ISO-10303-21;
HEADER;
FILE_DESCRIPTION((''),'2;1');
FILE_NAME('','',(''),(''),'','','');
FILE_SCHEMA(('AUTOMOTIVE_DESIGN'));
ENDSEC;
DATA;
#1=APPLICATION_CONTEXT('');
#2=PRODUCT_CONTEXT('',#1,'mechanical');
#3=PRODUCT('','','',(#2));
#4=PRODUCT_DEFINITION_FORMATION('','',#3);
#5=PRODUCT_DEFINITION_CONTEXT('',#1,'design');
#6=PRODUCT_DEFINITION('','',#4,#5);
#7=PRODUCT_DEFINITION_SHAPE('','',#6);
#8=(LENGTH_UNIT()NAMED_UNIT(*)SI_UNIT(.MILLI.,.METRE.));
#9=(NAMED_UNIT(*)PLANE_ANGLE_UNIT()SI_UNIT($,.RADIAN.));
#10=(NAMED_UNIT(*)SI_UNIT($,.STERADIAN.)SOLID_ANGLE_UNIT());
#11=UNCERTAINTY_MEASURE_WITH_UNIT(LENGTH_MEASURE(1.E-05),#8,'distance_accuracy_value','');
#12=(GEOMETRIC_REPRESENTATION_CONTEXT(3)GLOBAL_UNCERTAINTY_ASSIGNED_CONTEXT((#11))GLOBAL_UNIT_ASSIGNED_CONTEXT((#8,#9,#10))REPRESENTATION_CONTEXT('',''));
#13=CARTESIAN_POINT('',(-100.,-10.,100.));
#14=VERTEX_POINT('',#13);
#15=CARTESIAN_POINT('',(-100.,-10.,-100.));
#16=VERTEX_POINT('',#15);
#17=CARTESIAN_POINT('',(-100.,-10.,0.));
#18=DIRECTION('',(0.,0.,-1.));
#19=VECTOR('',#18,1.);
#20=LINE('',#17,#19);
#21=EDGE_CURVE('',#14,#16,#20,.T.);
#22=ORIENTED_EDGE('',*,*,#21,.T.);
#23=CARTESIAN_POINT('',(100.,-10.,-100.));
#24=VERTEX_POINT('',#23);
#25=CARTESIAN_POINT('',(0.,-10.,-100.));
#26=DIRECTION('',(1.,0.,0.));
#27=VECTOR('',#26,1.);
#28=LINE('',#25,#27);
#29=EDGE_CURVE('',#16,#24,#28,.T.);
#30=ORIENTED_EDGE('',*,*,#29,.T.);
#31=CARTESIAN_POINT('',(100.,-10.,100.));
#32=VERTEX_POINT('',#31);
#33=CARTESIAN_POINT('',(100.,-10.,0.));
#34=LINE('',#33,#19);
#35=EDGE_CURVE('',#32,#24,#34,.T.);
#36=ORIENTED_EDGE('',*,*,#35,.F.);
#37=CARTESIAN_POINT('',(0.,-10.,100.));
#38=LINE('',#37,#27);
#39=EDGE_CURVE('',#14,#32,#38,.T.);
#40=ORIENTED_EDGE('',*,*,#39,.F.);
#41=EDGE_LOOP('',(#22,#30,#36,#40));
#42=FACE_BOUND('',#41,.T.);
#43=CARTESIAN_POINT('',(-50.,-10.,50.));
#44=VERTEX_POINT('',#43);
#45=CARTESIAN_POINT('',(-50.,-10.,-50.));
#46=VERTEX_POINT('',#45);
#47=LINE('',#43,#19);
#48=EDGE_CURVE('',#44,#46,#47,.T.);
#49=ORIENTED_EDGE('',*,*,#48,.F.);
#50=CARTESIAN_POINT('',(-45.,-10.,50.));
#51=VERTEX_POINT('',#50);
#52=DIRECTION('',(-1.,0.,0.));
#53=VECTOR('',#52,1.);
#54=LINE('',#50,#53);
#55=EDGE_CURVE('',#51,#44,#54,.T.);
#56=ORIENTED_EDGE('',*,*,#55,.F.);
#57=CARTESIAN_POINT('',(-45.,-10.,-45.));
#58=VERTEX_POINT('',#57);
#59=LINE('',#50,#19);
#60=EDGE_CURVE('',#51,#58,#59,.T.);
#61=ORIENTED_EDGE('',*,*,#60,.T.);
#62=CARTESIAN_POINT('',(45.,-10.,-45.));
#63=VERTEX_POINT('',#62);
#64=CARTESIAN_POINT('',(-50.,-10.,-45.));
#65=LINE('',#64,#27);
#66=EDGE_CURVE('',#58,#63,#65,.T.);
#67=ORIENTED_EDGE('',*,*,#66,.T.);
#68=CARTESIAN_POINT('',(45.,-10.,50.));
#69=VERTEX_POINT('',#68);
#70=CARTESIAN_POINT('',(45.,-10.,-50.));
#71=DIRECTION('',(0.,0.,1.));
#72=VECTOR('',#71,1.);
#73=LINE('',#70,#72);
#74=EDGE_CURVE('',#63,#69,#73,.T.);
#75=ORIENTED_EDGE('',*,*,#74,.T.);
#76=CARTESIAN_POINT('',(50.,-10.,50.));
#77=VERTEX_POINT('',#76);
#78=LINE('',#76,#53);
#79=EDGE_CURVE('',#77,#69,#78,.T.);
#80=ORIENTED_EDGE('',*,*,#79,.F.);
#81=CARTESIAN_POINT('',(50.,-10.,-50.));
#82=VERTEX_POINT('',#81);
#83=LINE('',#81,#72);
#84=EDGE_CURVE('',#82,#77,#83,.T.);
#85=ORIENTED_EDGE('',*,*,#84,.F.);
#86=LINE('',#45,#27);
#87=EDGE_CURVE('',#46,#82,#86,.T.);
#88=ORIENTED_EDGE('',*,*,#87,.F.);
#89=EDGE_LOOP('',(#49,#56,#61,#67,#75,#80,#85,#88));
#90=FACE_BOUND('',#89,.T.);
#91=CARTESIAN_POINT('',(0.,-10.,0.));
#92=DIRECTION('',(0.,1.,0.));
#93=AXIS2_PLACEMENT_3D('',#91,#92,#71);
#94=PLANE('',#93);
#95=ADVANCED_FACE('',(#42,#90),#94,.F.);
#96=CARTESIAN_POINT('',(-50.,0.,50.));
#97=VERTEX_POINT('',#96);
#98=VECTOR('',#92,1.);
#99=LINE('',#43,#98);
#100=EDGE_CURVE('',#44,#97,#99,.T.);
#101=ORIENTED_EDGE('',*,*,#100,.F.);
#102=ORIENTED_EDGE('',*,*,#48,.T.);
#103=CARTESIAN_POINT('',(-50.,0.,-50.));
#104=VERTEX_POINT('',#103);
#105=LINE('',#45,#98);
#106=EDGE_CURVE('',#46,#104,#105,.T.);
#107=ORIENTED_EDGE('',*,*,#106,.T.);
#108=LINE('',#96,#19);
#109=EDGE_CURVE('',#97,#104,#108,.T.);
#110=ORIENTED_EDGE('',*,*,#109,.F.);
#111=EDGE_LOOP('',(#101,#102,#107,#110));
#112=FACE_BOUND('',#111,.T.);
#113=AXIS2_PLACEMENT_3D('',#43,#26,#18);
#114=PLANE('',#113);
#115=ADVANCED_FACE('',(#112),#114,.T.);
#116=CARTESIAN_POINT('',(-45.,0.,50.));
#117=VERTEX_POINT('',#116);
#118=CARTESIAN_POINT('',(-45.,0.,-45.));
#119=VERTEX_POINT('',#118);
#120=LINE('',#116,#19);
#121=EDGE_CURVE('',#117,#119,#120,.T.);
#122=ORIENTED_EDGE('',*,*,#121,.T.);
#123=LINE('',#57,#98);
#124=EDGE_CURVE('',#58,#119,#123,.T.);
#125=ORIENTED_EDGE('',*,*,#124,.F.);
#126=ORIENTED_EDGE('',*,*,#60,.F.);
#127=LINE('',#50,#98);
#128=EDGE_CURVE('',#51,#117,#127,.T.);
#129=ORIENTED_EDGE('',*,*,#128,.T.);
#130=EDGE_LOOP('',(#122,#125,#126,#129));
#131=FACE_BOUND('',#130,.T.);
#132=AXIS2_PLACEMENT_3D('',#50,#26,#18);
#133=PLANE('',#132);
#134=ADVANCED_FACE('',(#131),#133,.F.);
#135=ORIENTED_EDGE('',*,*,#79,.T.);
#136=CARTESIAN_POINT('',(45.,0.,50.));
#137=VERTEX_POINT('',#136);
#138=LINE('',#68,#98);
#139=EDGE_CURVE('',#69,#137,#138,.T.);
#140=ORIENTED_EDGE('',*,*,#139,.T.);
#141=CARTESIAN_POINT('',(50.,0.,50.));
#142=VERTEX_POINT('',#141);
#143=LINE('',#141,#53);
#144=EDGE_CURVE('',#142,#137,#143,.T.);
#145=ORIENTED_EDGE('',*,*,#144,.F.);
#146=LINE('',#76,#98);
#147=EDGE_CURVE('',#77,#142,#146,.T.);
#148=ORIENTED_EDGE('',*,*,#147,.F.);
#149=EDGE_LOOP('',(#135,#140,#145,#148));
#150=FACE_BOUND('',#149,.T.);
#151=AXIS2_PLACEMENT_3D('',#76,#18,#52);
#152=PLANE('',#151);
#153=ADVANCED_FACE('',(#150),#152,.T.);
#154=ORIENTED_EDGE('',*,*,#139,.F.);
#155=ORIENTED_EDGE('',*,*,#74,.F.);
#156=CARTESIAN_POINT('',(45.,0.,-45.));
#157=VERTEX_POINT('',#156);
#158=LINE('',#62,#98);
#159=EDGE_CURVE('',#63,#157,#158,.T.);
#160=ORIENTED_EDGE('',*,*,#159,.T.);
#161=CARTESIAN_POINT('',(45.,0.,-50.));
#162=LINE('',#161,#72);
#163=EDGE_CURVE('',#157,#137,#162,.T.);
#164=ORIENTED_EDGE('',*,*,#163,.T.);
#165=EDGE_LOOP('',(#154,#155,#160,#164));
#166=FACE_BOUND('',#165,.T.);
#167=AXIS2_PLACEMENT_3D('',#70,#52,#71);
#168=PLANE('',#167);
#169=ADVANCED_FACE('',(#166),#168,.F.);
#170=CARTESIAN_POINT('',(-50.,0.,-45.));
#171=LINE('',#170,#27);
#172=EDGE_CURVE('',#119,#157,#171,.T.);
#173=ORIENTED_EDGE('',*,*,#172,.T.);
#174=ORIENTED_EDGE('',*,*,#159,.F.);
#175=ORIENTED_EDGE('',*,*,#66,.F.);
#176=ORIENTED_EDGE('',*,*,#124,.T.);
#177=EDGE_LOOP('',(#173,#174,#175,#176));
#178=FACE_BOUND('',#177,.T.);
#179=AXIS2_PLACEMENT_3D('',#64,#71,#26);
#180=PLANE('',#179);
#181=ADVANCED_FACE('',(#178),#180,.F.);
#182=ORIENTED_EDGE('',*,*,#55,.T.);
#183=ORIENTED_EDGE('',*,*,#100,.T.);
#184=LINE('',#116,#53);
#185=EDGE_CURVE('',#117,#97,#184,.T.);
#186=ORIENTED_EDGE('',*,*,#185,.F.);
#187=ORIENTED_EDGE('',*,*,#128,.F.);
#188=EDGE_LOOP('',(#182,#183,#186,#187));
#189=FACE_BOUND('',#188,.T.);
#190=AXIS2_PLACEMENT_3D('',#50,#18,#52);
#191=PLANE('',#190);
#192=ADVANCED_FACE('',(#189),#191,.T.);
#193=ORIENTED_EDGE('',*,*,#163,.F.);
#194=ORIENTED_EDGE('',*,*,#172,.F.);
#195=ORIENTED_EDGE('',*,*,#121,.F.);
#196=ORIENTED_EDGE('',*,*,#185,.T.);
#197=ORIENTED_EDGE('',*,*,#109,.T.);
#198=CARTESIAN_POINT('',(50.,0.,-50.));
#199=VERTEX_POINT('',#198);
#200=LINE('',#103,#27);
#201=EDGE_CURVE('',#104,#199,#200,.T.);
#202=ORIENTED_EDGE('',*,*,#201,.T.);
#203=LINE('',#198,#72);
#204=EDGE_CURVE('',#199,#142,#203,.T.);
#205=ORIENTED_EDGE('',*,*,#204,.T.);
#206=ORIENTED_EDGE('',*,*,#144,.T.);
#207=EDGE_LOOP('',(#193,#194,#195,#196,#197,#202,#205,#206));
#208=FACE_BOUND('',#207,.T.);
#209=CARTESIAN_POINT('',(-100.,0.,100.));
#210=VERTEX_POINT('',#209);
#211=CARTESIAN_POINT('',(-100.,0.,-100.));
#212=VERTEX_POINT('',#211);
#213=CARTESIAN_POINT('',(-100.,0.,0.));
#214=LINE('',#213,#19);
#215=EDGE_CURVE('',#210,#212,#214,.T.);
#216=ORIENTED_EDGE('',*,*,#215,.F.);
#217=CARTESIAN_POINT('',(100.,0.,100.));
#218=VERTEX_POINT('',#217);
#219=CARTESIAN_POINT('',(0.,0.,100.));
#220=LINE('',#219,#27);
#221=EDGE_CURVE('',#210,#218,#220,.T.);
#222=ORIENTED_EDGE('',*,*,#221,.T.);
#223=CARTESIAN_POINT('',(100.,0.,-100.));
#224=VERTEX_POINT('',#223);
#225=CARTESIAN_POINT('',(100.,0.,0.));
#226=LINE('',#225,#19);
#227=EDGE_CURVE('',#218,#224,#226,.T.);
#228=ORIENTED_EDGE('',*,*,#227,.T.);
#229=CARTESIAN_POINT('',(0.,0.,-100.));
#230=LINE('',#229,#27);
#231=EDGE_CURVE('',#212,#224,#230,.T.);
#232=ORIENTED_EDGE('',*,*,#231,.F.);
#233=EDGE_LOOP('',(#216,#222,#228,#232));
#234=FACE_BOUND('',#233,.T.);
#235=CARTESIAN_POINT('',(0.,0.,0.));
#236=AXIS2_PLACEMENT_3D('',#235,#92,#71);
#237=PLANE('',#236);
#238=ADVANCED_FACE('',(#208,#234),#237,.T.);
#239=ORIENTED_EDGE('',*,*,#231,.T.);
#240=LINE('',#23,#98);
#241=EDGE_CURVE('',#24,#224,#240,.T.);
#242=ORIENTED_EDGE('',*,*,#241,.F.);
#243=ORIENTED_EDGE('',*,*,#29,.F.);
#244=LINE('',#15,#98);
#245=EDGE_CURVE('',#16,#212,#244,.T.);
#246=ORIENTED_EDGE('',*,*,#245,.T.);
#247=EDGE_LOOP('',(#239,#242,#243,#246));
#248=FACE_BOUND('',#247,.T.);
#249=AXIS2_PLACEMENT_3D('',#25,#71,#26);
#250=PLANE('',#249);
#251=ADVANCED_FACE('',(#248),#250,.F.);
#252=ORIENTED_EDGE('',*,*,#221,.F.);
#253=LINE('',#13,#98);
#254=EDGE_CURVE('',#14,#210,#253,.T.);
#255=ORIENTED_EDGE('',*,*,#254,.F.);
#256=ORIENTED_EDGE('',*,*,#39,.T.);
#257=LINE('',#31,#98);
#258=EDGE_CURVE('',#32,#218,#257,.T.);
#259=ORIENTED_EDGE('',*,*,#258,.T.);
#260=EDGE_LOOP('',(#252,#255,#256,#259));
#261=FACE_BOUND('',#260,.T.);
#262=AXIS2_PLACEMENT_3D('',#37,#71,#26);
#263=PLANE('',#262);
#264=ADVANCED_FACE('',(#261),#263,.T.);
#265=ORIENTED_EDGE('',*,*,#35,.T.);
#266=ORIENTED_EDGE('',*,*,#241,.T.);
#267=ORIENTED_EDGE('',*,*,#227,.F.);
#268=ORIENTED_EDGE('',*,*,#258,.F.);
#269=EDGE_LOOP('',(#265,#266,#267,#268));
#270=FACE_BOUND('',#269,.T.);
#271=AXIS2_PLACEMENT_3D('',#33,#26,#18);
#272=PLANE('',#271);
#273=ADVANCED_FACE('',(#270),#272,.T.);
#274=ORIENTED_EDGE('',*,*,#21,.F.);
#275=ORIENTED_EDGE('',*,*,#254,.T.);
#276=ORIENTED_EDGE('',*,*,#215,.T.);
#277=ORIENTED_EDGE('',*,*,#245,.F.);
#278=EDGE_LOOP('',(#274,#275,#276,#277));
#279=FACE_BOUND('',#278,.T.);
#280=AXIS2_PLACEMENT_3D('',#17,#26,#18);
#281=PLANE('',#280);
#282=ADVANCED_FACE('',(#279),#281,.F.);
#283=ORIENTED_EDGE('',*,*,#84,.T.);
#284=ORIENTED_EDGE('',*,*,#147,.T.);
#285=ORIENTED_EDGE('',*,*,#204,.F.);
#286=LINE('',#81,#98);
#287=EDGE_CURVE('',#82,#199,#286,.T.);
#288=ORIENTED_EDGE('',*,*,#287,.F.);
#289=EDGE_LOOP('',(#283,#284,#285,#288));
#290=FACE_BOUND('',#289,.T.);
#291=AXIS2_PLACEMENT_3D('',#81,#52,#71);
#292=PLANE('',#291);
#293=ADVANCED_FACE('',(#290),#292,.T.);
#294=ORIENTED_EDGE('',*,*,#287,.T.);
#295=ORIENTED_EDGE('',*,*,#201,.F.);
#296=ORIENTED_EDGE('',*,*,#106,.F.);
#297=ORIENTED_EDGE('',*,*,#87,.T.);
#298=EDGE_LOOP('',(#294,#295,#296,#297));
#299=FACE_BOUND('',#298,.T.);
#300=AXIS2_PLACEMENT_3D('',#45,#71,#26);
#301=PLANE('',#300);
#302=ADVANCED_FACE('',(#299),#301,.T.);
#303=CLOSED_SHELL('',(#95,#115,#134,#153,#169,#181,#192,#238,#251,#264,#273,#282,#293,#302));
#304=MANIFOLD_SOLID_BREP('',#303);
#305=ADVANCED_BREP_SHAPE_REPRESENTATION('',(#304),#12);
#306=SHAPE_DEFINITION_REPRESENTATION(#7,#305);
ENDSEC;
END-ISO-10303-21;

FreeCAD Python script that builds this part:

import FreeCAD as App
import Part
import Sketcher


def add_polygon(sketch, points):
    """Adds a closed chain of lines whose ends are joined by coincident constraints."""
    first, n = sketch.GeometryCount, len(points)
    for a, b in zip(points, points[1:] + points[:1]):
        sketch.addGeometry(Part.LineSegment(App.Vector(*a, 0), App.Vector(*b, 0)), False)
    for i in range(n):
        sketch.addConstraint(Sketcher.Constraint("Coincident", first + i, 2, first + (i + 1) % n, 1))

doc = App.newDocument("Part")
params = doc.addObject("Spreadsheet::Sheet", "Params")
for row, (alias, value) in enumerate([
    ("sketch1_width", "200 mm"),
    ("pad1_length", "10 mm"),
    ("sketch2_width", "5 mm"),
    ("sketch2_width2", "90 mm"),
    ("sketch2_height", "95 mm"),
    ("pocket1_length", "10 mm"),
], start=1):
    params.set(f"A{row}", alias)
    params.set(f"B{row}", "=" + value)
    params.setAlias(f"B{row}", alias)

body = doc.addObject("PartDesign::Body", "Body")

# Sketch on XZ plane
sketch1 = body.newObject("Sketcher::SketchObject", "Sketch")
sketch1.AttachmentSupport = (doc.getObject("XZ_Plane"), [""])
sketch1.MapMode = "FlatFace"
add_polygon(sketch1, [(-100, -100), (-100, 100), (100, 100), (100, -100)])  # lines 0-3
sketch1.addConstraint([
    Sketcher.Constraint("Vertical", 0),
    Sketcher.Constraint("Horizontal", 1),
    Sketcher.Constraint("Vertical", 2),
    Sketcher.Constraint("Horizontal", 3),
    Sketcher.Constraint("Symmetric", 0, 2, 2, 2, -1, 1),
    Sketcher.Constraint("Equal", 3, 0),
    Sketcher.Constraint("DistanceX", 1, 1, 1, 2, 200.0),
])
sketch1.setExpression("Constraints[10]", "Params.sketch1_width")
pad1 = body.newObject("PartDesign::Pad", "Pad")
pad1.Profile = sketch1
pad1.setExpression("Length", "Params.pad1_length")

# Sketch on XZ plane
sketch2 = body.newObject("Sketcher::SketchObject", "Sketch001")
sketch2.AttachmentSupport = (doc.getObject("XZ_Plane"), [""])
sketch2.MapMode = "FlatFace"
add_polygon(sketch2, [(-50, -50), (-50, 50), (-45, 50), (-45, -45), (45, -45), (45, 50), (50, 50), (50, -50)])  # lines 0-7
sketch2.addConstraint([
    Sketcher.Constraint("Vertical", 0),
    Sketcher.Constraint("Horizontal", 1),
    Sketcher.Constraint("Vertical", 2),
    Sketcher.Constraint("Horizontal", 3),
    Sketcher.Constraint("Vertical", 4),
    Sketcher.Constraint("Horizontal", 5),
    Sketcher.Constraint("Vertical", 6),
    Sketcher.Constraint("Horizontal", 7),
    Sketcher.Constraint("Symmetric", 0, 2, 6, 2, -1, 1),
    Sketcher.Constraint("Symmetric", 1, 2, 4, 2, -2),
    Sketcher.Constraint("Equal", 7, 0),
    Sketcher.Constraint("DistanceX", 1, 1, 1, 2, 5.0),
    Sketcher.Constraint("DistanceX", 3, 1, 3, 2, 90.0),
    Sketcher.Constraint("DistanceY", 2, 2, 2, 1, 95.0),
])
sketch2.setExpression("Constraints[19]", "Params.sketch2_width")
sketch2.setExpression("Constraints[20]", "Params.sketch2_width2")
sketch2.setExpression("Constraints[21]", "Params.sketch2_height")
pocket1 = body.newObject("PartDesign::Pocket", "Pocket")
pocket1.Profile = sketch2
pocket1.setExpression("Length", "Params.pocket1_length")
pocket1.Reversed = True

doc.recompute()
